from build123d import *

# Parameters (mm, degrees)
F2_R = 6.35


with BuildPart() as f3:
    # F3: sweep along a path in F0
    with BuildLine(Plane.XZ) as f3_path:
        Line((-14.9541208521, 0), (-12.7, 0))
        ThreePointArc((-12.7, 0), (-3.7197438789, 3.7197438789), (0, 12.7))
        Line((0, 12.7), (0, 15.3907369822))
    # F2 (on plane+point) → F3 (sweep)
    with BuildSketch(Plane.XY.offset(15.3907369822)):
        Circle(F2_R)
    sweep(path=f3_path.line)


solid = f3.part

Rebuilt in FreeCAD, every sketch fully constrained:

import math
import FreeCAD as App
import Part
import Sketcher
from FreeCAD import Vector
Q = App.Units.Quantity

doc = App.newDocument("Part")
params = doc.addObject("Spreadsheet::Sheet", "Params")
for row, (alias, value) in enumerate([
    ("sketch1_diameter", "0.5 in"),
    ("sketch2_radius", "0.5 in"),
], start=1):
    params.set(f"A{row}", alias)
    params.set(f"B{row}", "=" + value)
    params.setAlias(f"B{row}", alias)

body = doc.addObject("PartDesign::Body", "Body")

sketch1 = body.newObject("Sketcher::SketchObject", "Sketch")
sketch1.AttachmentSupport = (doc.getObject("XY_Plane"), [""])
sketch1.MapMode = "FlatFace"
sketch1.AttachmentOffset = App.Placement(Vector(0, 0, 15.390737), App.Rotation())
sketch1.addGeometry(Part.Circle(Vector(0, 0, 0), Vector(0, 0, 1), 6.35), False)
sketch1.addConstraint([
    Sketcher.Constraint("Coincident", 0, 3, -1, 1),
    Sketcher.Constraint("Diameter", 0, Q("0.5 in")),
])
sketch1.setExpression("Constraints[1]", "Params.sketch1_diameter")

sketch2 = body.newObject("Sketcher::SketchObject", "Sketch001")
sketch2.AttachmentSupport = (doc.getObject("XZ_Plane"), [""])
sketch2.MapMode = "FlatFace"
sketch2.addGeometry([
    Part.LineSegment(Vector(-14.954121, 0, 0), Vector(-12.7, 0, 0)),
    Part.ArcOfCircle(Part.Circle(Vector(-12.7, 12.7, 0), Vector(0, 0, 1), 12.7), math.radians(-90), math.radians(0)),
    Part.LineSegment(Vector(0, 12.7, 0), Vector(0, 15.390737, 0)),
], False)
sketch2.addConstraint([
    Sketcher.Constraint("Tangent", 0, 2, 1, 1),
    Sketcher.Constraint("Tangent", 1, 2, 2, 1),
    Sketcher.Constraint("Horizontal", 0),
    Sketcher.Constraint("Vertical", 2),
    Sketcher.Constraint("PointOnObject", 0, 1, -1),
    Sketcher.Constraint("PointOnObject", 1, 2, -2),
    Sketcher.Constraint("Radius", 1, Q("0.5 in")),
    Sketcher.Constraint("DistanceX", 0, 1, 0, 2, 2.254121),
    Sketcher.Constraint("DistanceY", 2, 1, 2, 2, 2.690737),
])
sketch2.setExpression("Constraints[6]", "Params.sketch2_radius")
doc.recompute()

additivepipe = body.newObject("PartDesign::AdditivePipe", "AdditivePipe")
additivepipe.Profile = sketch1
additivepipe.Spine = (sketch2, ["Edge1", "Edge2", "Edge3"])

doc.recompute()
